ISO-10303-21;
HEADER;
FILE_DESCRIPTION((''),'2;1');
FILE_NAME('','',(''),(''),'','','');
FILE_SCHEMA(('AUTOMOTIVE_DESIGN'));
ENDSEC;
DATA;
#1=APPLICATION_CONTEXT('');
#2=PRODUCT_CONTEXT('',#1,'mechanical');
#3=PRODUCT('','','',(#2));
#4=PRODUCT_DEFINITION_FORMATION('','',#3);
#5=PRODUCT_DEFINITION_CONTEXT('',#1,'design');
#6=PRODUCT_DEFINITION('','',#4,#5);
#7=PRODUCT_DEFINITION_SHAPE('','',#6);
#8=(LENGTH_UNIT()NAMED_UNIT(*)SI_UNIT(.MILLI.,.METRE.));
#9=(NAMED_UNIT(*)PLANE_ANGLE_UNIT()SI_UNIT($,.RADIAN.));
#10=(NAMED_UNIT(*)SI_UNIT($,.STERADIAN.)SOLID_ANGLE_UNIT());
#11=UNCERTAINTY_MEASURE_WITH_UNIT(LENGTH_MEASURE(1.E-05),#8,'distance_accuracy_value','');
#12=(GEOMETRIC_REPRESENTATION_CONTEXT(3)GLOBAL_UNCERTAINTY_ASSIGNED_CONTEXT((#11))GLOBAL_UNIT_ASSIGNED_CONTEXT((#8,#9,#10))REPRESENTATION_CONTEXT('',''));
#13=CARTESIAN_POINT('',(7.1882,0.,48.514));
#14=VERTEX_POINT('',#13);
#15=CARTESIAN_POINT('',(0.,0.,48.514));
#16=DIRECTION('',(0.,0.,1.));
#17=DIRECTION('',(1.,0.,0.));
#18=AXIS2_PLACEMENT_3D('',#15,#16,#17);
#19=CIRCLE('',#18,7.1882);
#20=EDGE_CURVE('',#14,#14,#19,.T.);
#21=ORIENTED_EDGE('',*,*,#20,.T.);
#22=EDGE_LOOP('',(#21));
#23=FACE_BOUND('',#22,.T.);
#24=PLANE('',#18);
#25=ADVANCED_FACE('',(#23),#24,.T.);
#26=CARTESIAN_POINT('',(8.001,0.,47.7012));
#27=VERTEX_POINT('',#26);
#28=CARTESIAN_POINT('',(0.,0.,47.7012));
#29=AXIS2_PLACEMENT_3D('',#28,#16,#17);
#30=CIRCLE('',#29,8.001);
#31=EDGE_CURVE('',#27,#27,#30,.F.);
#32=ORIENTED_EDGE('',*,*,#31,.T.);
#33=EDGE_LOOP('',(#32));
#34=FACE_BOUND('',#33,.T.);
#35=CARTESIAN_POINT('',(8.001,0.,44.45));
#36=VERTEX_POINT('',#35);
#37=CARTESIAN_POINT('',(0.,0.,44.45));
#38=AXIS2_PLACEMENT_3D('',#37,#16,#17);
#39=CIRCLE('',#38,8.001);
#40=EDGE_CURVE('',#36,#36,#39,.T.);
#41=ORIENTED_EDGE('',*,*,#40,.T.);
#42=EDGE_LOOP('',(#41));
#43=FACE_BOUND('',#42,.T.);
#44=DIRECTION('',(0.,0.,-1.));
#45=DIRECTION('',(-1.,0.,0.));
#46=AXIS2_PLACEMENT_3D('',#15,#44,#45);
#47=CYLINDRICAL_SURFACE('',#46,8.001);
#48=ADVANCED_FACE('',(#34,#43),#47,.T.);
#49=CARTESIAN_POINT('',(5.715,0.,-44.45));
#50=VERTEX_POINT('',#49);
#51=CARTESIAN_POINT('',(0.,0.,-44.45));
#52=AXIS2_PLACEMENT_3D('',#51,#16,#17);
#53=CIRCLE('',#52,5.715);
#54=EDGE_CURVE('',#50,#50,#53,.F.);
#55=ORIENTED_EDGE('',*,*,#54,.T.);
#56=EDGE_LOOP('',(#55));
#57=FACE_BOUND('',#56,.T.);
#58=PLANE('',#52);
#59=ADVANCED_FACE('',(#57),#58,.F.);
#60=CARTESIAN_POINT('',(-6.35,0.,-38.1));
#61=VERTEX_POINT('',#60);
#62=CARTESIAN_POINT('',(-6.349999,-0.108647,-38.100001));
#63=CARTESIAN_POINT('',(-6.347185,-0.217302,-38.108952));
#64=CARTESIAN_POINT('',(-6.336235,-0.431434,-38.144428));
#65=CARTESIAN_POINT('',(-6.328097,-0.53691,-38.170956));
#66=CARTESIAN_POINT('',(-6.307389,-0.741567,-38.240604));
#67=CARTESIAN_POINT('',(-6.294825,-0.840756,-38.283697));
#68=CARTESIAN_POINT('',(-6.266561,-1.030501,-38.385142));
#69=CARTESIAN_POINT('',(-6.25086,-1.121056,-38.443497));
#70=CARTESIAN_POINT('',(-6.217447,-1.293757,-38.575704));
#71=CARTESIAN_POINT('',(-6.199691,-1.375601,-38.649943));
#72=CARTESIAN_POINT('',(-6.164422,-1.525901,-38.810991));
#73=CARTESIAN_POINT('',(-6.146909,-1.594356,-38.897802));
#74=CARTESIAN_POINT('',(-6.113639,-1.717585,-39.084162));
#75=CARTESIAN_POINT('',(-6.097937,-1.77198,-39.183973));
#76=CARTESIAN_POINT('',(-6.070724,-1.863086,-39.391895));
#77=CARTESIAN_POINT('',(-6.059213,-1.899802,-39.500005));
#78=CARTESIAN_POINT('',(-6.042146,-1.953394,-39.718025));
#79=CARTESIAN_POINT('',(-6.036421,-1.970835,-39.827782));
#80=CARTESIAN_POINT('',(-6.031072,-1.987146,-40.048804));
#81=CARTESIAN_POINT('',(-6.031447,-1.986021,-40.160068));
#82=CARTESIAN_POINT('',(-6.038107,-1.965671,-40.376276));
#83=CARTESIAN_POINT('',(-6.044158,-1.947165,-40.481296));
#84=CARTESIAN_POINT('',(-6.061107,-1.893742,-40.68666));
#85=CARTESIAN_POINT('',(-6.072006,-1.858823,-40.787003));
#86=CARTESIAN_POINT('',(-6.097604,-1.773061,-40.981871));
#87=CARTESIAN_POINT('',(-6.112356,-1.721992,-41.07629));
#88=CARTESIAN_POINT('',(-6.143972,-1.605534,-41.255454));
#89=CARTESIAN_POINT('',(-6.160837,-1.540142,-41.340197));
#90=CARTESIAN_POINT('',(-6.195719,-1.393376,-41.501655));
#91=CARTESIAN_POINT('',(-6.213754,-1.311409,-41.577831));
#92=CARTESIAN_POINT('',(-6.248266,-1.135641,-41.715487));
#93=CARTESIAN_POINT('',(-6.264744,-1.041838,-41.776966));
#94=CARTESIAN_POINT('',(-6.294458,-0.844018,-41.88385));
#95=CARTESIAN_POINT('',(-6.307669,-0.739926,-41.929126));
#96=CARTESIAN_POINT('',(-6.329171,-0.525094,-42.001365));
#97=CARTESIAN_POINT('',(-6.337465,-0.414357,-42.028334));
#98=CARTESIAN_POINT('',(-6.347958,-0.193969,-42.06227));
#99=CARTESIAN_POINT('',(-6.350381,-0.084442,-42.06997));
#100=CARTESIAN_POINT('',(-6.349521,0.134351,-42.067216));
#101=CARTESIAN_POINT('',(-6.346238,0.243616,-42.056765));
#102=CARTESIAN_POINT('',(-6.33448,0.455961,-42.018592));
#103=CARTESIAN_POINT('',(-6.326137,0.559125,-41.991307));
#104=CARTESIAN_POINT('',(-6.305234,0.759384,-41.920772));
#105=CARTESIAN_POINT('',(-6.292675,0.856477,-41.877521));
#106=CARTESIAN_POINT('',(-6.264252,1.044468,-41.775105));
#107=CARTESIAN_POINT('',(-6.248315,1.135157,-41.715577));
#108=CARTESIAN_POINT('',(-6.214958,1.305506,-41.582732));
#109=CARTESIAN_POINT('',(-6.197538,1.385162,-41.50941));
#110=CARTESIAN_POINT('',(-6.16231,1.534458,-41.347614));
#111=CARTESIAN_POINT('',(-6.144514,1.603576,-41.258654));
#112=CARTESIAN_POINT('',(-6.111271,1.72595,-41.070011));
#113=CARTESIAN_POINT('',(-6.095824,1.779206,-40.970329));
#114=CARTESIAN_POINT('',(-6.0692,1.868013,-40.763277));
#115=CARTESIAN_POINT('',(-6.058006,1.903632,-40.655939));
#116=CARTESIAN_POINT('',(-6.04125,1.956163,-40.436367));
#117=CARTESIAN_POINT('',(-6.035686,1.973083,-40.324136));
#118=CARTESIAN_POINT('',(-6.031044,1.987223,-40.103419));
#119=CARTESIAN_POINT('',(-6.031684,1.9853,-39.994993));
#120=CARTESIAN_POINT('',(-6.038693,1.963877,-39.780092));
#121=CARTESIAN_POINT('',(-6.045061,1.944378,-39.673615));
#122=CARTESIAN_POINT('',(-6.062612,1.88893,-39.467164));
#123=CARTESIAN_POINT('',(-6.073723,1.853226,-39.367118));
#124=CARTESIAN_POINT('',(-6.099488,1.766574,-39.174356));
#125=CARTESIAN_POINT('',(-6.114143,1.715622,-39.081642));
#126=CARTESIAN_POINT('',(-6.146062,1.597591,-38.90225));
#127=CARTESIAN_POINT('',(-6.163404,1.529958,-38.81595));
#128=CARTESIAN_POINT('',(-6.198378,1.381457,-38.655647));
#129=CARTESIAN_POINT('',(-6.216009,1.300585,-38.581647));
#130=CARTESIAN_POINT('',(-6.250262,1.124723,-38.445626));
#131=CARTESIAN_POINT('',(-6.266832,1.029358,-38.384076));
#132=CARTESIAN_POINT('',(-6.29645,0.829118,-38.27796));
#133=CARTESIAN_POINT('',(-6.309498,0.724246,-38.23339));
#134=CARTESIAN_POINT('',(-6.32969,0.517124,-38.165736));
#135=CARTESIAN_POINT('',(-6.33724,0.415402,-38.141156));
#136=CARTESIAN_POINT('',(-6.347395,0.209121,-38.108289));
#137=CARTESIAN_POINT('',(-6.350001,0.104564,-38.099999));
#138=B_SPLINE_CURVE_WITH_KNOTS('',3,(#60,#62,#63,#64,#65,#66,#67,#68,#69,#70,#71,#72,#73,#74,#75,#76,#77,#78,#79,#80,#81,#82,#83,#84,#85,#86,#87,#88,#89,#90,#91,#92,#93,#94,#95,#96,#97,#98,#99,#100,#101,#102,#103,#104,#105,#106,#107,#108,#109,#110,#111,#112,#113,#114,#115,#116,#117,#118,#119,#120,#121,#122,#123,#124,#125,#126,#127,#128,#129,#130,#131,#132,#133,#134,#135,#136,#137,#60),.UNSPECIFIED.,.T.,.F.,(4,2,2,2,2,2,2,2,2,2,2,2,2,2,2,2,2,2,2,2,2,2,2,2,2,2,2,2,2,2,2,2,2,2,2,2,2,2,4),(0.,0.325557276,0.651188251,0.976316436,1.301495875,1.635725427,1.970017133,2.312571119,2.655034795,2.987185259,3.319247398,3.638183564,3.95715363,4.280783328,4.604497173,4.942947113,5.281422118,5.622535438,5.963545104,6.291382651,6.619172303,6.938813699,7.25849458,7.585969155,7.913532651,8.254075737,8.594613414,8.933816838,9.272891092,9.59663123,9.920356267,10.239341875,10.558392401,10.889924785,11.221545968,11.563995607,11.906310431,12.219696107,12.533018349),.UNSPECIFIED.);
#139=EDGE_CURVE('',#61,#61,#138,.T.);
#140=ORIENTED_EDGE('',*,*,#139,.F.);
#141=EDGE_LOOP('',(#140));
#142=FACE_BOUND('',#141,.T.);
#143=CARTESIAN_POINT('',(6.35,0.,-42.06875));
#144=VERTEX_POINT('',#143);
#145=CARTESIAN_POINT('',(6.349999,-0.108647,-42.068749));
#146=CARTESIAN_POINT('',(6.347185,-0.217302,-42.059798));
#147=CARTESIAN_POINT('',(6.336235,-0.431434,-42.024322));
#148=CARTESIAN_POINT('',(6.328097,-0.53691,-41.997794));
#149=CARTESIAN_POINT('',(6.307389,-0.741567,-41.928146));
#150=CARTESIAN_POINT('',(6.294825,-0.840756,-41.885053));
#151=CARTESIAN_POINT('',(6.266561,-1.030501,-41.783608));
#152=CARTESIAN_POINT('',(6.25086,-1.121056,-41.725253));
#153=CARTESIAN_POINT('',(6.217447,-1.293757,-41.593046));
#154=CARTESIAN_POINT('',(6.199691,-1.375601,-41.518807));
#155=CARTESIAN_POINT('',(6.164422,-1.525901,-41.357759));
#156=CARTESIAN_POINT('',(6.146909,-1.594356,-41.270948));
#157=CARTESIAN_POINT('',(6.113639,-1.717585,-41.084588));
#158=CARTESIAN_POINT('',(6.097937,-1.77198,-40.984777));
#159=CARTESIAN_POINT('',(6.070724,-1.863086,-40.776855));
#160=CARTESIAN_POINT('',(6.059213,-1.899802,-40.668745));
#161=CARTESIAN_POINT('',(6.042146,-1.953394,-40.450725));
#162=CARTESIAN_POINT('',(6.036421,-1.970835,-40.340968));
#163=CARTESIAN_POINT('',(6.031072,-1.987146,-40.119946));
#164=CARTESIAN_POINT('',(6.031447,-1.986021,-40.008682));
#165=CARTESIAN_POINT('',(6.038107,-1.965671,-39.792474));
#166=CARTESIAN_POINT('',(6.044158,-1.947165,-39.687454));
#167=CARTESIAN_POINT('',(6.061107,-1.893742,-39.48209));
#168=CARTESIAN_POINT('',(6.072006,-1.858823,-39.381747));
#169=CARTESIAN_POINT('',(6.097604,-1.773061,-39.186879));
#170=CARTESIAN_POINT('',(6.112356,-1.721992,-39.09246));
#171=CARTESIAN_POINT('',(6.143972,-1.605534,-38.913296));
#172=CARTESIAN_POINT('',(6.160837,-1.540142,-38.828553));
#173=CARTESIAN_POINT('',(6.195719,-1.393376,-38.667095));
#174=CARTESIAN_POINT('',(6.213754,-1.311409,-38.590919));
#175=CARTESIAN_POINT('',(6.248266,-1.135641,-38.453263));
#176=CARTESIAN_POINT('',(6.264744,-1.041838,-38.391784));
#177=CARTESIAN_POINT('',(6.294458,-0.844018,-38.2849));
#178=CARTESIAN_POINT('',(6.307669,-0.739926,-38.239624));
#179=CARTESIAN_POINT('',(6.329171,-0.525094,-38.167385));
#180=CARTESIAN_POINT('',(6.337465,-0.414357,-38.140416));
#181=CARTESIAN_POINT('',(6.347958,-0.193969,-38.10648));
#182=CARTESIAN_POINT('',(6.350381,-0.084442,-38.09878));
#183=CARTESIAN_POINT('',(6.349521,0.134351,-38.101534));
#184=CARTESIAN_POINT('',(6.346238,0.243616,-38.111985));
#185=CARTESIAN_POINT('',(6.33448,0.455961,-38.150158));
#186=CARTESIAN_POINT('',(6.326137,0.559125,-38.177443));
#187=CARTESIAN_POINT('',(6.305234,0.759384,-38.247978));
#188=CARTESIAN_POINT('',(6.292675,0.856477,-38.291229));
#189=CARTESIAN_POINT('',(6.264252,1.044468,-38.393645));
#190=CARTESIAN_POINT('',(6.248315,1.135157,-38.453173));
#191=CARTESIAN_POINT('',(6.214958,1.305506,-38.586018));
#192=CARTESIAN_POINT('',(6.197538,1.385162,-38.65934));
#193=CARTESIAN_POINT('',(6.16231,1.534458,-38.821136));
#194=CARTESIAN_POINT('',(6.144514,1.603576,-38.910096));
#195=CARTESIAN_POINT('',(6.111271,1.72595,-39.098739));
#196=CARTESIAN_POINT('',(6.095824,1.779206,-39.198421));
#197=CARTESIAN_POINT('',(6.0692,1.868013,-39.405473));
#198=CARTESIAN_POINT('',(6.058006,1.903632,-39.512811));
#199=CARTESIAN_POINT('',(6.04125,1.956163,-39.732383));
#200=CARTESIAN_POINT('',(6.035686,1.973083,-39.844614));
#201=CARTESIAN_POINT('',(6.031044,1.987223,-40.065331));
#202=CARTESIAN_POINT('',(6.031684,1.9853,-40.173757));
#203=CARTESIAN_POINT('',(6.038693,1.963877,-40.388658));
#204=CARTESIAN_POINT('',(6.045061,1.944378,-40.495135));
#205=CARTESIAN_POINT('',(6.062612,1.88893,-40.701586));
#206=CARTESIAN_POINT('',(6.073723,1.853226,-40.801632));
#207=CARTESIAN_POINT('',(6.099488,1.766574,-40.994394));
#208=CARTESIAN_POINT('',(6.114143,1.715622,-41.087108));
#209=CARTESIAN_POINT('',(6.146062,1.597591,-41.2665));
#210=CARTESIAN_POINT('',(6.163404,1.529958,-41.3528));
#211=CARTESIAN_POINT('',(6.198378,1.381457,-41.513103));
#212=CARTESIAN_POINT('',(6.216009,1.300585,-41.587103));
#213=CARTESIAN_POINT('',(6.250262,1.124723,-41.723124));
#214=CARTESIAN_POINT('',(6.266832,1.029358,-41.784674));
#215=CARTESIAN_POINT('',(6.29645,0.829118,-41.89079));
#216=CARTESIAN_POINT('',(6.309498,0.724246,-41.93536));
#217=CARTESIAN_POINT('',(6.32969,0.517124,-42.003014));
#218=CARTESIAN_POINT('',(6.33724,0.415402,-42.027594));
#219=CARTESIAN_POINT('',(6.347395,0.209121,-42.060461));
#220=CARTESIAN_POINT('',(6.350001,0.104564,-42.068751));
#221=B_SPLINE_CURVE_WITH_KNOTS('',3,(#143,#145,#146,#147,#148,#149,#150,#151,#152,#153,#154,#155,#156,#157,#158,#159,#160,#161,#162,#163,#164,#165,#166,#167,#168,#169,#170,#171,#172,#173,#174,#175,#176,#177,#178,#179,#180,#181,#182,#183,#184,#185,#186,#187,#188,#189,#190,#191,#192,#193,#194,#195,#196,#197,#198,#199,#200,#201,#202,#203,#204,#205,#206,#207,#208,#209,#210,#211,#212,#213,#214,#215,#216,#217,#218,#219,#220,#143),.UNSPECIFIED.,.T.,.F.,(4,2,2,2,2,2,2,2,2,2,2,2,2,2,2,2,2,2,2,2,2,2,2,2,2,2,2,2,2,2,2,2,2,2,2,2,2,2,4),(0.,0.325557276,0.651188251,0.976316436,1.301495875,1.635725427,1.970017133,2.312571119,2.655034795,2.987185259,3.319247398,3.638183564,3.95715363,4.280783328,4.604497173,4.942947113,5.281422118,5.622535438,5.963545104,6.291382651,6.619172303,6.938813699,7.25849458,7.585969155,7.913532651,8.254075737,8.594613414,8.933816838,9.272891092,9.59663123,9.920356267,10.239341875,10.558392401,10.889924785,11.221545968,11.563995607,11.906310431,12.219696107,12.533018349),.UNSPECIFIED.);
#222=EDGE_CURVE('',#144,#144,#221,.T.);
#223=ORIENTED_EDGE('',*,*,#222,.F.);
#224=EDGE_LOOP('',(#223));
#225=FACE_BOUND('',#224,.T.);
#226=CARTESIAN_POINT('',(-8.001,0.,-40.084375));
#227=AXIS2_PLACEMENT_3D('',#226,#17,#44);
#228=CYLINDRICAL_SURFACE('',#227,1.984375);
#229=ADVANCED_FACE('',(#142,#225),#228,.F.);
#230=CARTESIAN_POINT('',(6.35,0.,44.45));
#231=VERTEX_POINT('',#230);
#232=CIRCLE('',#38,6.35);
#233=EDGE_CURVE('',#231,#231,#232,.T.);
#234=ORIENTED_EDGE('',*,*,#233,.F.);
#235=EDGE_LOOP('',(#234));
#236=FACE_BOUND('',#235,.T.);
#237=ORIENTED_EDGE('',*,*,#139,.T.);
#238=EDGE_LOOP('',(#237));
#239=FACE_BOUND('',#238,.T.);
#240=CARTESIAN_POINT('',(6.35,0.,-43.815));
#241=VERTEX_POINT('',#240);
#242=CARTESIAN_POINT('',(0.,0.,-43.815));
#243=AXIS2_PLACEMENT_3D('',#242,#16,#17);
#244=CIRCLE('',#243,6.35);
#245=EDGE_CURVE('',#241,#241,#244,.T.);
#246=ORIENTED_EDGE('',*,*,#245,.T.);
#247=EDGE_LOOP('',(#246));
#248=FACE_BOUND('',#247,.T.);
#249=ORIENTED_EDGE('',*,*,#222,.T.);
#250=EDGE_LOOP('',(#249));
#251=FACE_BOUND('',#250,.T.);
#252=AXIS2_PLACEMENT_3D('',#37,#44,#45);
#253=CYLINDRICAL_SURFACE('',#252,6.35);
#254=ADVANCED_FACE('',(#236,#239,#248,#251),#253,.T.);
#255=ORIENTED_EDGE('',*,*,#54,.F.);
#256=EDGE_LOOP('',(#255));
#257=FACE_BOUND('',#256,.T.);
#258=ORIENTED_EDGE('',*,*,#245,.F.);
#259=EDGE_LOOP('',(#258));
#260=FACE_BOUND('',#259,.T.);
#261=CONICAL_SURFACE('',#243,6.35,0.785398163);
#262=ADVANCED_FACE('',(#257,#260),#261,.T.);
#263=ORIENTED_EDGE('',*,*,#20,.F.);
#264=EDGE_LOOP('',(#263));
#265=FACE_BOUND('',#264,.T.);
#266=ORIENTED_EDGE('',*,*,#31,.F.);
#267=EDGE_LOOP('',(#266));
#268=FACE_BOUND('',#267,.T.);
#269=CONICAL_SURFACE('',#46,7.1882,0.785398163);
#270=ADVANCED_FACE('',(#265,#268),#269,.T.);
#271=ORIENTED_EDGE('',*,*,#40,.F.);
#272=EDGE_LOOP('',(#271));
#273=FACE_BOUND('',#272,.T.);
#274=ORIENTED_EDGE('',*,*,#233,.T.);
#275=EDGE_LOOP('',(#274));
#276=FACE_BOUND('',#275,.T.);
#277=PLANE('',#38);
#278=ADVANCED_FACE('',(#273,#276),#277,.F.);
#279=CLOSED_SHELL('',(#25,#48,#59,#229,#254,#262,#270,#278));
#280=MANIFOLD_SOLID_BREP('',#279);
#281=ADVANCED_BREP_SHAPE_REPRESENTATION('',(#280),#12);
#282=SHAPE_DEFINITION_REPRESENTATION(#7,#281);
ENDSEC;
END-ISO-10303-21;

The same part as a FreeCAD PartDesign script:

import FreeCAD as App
import Part
import Sketcher
from FreeCAD import Vector
Q = App.Units.Quantity


def edges_at(feature, points):
    """Names of the edges that pass closest to the given points."""
    edges = feature.Shape.Edges
    near = lambda p: min(range(len(edges)), key=lambda i: edges[i].distToShape(Part.Vertex(*p))[0])
    return sorted({f"Edge{near(p) + 1}" for p in points})

doc = App.newDocument("Part")
body = doc.addObject("PartDesign::Body", "Body")

# Sketch on XY plane
sketch1 = body.newObject("Sketcher::SketchObject", "Sketch")
sketch1.AttachmentSupport = (doc.getObject("XY_Plane"), [""])
sketch1.MapMode = "FlatFace"
sketch1.addGeometry(Part.Circle(Vector(0, 0, 0), Vector(0, 0, 1), 6.35), False)
sketch1.addConstraint([
    Sketcher.Constraint("Coincident", 0, 3, -1, 1),
    Sketcher.Constraint("Diameter", 0, Q("0.5 in")),
])
pad1 = body.newObject("PartDesign::Pad", "Pad")
pad1.Profile = sketch1
pad1.Length = Q("3.5 in")
pad1.Midplane = True

# Sketch on XY plane
sketch2 = body.newObject("Sketcher::SketchObject", "Sketch001")
sketch2.AttachmentSupport = (doc.getObject("XY_Plane"), [""])
sketch2.MapMode = "FlatFace"
sketch2.AttachmentOffset = App.Placement(Vector(0, 0, 1.75 * 25.4), App.Rotation())
sketch2.addGeometry(Part.Circle(Vector(0, 0, 0), Vector(0, 0, 1), 8.001), False)
sketch2.addConstraint([
    Sketcher.Constraint("Coincident", 0, 3, -1, 1),
    Sketcher.Constraint("Diameter", 0, Q("0.63 in")),
])
pad2 = body.newObject("PartDesign::Pad", "Pad001")
pad2.Profile = sketch2
pad2.Length = Q("0.16 in")
doc.recompute()

chamfer = body.newObject("PartDesign::Chamfer", "Chamfer")
chamfer.Base = (pad2, edges_at(pad2, [(-8.001, 0, 48.514)]))
chamfer.Size = Q("0.032 in")

# Sketch on YZ plane
sketch3 = body.newObject("Sketcher::SketchObject", "Sketch002")
sketch3.AttachmentSupport = (doc.getObject("YZ_Plane"), [""])
sketch3.MapMode = "FlatFace"
sketch3.addGeometry(Part.Circle(Vector(0, -40.084375, 0), Vector(0, 0, 1), 1.984375), False)
sketch3.addConstraint([
    Sketcher.Constraint("PointOnObject", 0, 3, -2),
    Sketcher.Constraint("Diameter", 0, Q("0.15625 in")),
    Sketcher.Constraint("DistanceY", 0, 3, -1, 1, Q("1.578125 in")),
])
pocket1 = body.newObject("PartDesign::Pocket", "Pocket")
pocket1.Profile = sketch3
pocket1.Type = "ThroughAll"
pocket1.Midplane = True
doc.recompute()

chamfer2 = body.newObject("PartDesign::Chamfer", "Chamfer001")
chamfer2.Base = (pocket1, edges_at(pocket1, [(-6.35, 0, -44.45)]))
chamfer2.Size = Q("0.025 in")

doc.recompute()
